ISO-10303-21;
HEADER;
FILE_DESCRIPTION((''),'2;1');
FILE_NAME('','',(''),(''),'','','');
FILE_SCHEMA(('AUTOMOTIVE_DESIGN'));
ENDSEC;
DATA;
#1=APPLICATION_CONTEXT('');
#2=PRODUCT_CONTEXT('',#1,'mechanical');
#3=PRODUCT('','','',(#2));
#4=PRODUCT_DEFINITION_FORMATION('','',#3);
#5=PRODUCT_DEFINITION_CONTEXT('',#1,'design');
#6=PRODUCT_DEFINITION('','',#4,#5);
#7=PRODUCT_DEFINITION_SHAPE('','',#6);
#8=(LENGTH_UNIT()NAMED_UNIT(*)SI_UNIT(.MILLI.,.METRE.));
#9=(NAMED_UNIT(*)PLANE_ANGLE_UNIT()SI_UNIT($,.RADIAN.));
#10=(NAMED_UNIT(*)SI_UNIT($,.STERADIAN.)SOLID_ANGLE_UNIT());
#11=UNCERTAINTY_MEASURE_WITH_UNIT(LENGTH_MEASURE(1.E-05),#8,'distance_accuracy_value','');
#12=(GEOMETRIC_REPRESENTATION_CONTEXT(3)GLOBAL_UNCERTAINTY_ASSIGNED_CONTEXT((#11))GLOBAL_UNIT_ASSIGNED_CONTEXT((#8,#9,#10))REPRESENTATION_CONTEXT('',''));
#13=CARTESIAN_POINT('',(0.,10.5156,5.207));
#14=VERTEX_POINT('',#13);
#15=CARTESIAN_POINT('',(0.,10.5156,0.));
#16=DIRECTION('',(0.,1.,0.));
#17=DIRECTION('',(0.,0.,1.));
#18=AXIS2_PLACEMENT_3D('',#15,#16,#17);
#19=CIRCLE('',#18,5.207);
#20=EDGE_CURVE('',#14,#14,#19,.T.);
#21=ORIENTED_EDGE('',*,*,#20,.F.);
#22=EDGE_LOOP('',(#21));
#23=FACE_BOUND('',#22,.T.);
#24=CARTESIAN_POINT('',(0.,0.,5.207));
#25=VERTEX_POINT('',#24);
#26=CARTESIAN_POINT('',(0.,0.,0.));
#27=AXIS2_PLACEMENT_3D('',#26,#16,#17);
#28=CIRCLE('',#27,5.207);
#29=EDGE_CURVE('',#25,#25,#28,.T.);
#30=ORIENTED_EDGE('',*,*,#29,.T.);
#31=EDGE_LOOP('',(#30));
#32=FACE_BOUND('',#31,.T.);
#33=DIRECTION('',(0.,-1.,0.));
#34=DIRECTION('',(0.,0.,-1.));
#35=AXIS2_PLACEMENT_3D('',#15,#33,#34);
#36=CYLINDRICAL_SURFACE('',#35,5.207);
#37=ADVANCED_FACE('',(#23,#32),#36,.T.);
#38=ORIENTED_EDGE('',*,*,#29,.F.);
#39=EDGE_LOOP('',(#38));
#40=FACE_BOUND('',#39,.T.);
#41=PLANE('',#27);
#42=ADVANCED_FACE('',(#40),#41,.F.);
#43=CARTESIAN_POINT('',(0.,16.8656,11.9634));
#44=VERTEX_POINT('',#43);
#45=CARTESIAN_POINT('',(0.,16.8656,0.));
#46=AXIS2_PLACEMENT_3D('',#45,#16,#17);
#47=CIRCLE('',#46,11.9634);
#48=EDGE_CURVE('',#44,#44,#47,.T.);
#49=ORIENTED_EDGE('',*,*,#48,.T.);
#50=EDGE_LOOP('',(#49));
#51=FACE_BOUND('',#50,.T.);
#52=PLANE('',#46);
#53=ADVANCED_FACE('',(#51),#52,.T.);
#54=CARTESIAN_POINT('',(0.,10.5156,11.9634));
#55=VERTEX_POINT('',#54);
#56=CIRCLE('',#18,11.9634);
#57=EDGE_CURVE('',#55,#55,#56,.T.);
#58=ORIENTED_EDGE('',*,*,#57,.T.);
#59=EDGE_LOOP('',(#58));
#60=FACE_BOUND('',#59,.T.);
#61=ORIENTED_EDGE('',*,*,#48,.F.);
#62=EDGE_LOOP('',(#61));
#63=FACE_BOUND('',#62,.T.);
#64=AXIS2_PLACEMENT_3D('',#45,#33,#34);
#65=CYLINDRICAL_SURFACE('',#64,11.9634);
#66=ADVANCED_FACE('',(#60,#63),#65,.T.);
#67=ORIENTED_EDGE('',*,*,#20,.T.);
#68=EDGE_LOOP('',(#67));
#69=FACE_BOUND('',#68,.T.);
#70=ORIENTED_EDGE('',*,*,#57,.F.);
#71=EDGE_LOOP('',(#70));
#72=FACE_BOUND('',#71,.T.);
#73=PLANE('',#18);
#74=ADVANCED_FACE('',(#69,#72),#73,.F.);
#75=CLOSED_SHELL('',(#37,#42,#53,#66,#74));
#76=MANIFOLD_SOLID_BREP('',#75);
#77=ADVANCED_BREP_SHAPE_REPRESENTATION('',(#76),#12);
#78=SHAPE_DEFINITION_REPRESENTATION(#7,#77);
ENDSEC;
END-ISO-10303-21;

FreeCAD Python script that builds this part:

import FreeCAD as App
import Part
import Sketcher

V = App.Vector
Q = App.Units.Quantity

doc = App.newDocument("Part")
body = doc.addObject("PartDesign::Body", "Body")

# Sketch on XZ plane
sketch1 = body.newObject("Sketcher::SketchObject", "Sketch")
sketch1.AttachmentSupport = (doc.getObject("XZ_Plane"), [""])
sketch1.MapMode = "FlatFace"
sketch1.addGeometry(Part.Circle(V(0, 0, 0), V(0, 0, 1), 5), False)
sketch1.addConstraint([
    Sketcher.Constraint("Coincident", 0, 3, -1, 1),
    Sketcher.Constraint("Diameter", 0, Q("0.41 in")),
])
pad1 = body.newObject("PartDesign::Pad", "Pad")
pad1.Profile = sketch1
pad1.Length = Q("0.414 in")
pad1.Reversed = True

# Sketch on XZ plane
sketch2 = body.newObject("Sketcher::SketchObject", "Sketch001")
sketch2.AttachmentSupport = (doc.getObject("XZ_Plane"), [""])
sketch2.MapMode = "FlatFace"
sketch2.AttachmentOffset = App.Placement(V(0, 0, -0.414 * 25.4), App.Rotation())
sketch2.addGeometry(Part.Circle(V(0, 0, 0), V(0, 0, 1), 12), False)
sketch2.addConstraint([
    Sketcher.Constraint("Coincident", 0, 3, -1, 1),
    Sketcher.Constraint("Diameter", 0, Q("0.942 in")),
])
pad2 = body.newObject("PartDesign::Pad", "Pad001")
pad2.Profile = sketch2
pad2.Length = Q("0.25 in")
pad2.Reversed = True

doc.recompute()
